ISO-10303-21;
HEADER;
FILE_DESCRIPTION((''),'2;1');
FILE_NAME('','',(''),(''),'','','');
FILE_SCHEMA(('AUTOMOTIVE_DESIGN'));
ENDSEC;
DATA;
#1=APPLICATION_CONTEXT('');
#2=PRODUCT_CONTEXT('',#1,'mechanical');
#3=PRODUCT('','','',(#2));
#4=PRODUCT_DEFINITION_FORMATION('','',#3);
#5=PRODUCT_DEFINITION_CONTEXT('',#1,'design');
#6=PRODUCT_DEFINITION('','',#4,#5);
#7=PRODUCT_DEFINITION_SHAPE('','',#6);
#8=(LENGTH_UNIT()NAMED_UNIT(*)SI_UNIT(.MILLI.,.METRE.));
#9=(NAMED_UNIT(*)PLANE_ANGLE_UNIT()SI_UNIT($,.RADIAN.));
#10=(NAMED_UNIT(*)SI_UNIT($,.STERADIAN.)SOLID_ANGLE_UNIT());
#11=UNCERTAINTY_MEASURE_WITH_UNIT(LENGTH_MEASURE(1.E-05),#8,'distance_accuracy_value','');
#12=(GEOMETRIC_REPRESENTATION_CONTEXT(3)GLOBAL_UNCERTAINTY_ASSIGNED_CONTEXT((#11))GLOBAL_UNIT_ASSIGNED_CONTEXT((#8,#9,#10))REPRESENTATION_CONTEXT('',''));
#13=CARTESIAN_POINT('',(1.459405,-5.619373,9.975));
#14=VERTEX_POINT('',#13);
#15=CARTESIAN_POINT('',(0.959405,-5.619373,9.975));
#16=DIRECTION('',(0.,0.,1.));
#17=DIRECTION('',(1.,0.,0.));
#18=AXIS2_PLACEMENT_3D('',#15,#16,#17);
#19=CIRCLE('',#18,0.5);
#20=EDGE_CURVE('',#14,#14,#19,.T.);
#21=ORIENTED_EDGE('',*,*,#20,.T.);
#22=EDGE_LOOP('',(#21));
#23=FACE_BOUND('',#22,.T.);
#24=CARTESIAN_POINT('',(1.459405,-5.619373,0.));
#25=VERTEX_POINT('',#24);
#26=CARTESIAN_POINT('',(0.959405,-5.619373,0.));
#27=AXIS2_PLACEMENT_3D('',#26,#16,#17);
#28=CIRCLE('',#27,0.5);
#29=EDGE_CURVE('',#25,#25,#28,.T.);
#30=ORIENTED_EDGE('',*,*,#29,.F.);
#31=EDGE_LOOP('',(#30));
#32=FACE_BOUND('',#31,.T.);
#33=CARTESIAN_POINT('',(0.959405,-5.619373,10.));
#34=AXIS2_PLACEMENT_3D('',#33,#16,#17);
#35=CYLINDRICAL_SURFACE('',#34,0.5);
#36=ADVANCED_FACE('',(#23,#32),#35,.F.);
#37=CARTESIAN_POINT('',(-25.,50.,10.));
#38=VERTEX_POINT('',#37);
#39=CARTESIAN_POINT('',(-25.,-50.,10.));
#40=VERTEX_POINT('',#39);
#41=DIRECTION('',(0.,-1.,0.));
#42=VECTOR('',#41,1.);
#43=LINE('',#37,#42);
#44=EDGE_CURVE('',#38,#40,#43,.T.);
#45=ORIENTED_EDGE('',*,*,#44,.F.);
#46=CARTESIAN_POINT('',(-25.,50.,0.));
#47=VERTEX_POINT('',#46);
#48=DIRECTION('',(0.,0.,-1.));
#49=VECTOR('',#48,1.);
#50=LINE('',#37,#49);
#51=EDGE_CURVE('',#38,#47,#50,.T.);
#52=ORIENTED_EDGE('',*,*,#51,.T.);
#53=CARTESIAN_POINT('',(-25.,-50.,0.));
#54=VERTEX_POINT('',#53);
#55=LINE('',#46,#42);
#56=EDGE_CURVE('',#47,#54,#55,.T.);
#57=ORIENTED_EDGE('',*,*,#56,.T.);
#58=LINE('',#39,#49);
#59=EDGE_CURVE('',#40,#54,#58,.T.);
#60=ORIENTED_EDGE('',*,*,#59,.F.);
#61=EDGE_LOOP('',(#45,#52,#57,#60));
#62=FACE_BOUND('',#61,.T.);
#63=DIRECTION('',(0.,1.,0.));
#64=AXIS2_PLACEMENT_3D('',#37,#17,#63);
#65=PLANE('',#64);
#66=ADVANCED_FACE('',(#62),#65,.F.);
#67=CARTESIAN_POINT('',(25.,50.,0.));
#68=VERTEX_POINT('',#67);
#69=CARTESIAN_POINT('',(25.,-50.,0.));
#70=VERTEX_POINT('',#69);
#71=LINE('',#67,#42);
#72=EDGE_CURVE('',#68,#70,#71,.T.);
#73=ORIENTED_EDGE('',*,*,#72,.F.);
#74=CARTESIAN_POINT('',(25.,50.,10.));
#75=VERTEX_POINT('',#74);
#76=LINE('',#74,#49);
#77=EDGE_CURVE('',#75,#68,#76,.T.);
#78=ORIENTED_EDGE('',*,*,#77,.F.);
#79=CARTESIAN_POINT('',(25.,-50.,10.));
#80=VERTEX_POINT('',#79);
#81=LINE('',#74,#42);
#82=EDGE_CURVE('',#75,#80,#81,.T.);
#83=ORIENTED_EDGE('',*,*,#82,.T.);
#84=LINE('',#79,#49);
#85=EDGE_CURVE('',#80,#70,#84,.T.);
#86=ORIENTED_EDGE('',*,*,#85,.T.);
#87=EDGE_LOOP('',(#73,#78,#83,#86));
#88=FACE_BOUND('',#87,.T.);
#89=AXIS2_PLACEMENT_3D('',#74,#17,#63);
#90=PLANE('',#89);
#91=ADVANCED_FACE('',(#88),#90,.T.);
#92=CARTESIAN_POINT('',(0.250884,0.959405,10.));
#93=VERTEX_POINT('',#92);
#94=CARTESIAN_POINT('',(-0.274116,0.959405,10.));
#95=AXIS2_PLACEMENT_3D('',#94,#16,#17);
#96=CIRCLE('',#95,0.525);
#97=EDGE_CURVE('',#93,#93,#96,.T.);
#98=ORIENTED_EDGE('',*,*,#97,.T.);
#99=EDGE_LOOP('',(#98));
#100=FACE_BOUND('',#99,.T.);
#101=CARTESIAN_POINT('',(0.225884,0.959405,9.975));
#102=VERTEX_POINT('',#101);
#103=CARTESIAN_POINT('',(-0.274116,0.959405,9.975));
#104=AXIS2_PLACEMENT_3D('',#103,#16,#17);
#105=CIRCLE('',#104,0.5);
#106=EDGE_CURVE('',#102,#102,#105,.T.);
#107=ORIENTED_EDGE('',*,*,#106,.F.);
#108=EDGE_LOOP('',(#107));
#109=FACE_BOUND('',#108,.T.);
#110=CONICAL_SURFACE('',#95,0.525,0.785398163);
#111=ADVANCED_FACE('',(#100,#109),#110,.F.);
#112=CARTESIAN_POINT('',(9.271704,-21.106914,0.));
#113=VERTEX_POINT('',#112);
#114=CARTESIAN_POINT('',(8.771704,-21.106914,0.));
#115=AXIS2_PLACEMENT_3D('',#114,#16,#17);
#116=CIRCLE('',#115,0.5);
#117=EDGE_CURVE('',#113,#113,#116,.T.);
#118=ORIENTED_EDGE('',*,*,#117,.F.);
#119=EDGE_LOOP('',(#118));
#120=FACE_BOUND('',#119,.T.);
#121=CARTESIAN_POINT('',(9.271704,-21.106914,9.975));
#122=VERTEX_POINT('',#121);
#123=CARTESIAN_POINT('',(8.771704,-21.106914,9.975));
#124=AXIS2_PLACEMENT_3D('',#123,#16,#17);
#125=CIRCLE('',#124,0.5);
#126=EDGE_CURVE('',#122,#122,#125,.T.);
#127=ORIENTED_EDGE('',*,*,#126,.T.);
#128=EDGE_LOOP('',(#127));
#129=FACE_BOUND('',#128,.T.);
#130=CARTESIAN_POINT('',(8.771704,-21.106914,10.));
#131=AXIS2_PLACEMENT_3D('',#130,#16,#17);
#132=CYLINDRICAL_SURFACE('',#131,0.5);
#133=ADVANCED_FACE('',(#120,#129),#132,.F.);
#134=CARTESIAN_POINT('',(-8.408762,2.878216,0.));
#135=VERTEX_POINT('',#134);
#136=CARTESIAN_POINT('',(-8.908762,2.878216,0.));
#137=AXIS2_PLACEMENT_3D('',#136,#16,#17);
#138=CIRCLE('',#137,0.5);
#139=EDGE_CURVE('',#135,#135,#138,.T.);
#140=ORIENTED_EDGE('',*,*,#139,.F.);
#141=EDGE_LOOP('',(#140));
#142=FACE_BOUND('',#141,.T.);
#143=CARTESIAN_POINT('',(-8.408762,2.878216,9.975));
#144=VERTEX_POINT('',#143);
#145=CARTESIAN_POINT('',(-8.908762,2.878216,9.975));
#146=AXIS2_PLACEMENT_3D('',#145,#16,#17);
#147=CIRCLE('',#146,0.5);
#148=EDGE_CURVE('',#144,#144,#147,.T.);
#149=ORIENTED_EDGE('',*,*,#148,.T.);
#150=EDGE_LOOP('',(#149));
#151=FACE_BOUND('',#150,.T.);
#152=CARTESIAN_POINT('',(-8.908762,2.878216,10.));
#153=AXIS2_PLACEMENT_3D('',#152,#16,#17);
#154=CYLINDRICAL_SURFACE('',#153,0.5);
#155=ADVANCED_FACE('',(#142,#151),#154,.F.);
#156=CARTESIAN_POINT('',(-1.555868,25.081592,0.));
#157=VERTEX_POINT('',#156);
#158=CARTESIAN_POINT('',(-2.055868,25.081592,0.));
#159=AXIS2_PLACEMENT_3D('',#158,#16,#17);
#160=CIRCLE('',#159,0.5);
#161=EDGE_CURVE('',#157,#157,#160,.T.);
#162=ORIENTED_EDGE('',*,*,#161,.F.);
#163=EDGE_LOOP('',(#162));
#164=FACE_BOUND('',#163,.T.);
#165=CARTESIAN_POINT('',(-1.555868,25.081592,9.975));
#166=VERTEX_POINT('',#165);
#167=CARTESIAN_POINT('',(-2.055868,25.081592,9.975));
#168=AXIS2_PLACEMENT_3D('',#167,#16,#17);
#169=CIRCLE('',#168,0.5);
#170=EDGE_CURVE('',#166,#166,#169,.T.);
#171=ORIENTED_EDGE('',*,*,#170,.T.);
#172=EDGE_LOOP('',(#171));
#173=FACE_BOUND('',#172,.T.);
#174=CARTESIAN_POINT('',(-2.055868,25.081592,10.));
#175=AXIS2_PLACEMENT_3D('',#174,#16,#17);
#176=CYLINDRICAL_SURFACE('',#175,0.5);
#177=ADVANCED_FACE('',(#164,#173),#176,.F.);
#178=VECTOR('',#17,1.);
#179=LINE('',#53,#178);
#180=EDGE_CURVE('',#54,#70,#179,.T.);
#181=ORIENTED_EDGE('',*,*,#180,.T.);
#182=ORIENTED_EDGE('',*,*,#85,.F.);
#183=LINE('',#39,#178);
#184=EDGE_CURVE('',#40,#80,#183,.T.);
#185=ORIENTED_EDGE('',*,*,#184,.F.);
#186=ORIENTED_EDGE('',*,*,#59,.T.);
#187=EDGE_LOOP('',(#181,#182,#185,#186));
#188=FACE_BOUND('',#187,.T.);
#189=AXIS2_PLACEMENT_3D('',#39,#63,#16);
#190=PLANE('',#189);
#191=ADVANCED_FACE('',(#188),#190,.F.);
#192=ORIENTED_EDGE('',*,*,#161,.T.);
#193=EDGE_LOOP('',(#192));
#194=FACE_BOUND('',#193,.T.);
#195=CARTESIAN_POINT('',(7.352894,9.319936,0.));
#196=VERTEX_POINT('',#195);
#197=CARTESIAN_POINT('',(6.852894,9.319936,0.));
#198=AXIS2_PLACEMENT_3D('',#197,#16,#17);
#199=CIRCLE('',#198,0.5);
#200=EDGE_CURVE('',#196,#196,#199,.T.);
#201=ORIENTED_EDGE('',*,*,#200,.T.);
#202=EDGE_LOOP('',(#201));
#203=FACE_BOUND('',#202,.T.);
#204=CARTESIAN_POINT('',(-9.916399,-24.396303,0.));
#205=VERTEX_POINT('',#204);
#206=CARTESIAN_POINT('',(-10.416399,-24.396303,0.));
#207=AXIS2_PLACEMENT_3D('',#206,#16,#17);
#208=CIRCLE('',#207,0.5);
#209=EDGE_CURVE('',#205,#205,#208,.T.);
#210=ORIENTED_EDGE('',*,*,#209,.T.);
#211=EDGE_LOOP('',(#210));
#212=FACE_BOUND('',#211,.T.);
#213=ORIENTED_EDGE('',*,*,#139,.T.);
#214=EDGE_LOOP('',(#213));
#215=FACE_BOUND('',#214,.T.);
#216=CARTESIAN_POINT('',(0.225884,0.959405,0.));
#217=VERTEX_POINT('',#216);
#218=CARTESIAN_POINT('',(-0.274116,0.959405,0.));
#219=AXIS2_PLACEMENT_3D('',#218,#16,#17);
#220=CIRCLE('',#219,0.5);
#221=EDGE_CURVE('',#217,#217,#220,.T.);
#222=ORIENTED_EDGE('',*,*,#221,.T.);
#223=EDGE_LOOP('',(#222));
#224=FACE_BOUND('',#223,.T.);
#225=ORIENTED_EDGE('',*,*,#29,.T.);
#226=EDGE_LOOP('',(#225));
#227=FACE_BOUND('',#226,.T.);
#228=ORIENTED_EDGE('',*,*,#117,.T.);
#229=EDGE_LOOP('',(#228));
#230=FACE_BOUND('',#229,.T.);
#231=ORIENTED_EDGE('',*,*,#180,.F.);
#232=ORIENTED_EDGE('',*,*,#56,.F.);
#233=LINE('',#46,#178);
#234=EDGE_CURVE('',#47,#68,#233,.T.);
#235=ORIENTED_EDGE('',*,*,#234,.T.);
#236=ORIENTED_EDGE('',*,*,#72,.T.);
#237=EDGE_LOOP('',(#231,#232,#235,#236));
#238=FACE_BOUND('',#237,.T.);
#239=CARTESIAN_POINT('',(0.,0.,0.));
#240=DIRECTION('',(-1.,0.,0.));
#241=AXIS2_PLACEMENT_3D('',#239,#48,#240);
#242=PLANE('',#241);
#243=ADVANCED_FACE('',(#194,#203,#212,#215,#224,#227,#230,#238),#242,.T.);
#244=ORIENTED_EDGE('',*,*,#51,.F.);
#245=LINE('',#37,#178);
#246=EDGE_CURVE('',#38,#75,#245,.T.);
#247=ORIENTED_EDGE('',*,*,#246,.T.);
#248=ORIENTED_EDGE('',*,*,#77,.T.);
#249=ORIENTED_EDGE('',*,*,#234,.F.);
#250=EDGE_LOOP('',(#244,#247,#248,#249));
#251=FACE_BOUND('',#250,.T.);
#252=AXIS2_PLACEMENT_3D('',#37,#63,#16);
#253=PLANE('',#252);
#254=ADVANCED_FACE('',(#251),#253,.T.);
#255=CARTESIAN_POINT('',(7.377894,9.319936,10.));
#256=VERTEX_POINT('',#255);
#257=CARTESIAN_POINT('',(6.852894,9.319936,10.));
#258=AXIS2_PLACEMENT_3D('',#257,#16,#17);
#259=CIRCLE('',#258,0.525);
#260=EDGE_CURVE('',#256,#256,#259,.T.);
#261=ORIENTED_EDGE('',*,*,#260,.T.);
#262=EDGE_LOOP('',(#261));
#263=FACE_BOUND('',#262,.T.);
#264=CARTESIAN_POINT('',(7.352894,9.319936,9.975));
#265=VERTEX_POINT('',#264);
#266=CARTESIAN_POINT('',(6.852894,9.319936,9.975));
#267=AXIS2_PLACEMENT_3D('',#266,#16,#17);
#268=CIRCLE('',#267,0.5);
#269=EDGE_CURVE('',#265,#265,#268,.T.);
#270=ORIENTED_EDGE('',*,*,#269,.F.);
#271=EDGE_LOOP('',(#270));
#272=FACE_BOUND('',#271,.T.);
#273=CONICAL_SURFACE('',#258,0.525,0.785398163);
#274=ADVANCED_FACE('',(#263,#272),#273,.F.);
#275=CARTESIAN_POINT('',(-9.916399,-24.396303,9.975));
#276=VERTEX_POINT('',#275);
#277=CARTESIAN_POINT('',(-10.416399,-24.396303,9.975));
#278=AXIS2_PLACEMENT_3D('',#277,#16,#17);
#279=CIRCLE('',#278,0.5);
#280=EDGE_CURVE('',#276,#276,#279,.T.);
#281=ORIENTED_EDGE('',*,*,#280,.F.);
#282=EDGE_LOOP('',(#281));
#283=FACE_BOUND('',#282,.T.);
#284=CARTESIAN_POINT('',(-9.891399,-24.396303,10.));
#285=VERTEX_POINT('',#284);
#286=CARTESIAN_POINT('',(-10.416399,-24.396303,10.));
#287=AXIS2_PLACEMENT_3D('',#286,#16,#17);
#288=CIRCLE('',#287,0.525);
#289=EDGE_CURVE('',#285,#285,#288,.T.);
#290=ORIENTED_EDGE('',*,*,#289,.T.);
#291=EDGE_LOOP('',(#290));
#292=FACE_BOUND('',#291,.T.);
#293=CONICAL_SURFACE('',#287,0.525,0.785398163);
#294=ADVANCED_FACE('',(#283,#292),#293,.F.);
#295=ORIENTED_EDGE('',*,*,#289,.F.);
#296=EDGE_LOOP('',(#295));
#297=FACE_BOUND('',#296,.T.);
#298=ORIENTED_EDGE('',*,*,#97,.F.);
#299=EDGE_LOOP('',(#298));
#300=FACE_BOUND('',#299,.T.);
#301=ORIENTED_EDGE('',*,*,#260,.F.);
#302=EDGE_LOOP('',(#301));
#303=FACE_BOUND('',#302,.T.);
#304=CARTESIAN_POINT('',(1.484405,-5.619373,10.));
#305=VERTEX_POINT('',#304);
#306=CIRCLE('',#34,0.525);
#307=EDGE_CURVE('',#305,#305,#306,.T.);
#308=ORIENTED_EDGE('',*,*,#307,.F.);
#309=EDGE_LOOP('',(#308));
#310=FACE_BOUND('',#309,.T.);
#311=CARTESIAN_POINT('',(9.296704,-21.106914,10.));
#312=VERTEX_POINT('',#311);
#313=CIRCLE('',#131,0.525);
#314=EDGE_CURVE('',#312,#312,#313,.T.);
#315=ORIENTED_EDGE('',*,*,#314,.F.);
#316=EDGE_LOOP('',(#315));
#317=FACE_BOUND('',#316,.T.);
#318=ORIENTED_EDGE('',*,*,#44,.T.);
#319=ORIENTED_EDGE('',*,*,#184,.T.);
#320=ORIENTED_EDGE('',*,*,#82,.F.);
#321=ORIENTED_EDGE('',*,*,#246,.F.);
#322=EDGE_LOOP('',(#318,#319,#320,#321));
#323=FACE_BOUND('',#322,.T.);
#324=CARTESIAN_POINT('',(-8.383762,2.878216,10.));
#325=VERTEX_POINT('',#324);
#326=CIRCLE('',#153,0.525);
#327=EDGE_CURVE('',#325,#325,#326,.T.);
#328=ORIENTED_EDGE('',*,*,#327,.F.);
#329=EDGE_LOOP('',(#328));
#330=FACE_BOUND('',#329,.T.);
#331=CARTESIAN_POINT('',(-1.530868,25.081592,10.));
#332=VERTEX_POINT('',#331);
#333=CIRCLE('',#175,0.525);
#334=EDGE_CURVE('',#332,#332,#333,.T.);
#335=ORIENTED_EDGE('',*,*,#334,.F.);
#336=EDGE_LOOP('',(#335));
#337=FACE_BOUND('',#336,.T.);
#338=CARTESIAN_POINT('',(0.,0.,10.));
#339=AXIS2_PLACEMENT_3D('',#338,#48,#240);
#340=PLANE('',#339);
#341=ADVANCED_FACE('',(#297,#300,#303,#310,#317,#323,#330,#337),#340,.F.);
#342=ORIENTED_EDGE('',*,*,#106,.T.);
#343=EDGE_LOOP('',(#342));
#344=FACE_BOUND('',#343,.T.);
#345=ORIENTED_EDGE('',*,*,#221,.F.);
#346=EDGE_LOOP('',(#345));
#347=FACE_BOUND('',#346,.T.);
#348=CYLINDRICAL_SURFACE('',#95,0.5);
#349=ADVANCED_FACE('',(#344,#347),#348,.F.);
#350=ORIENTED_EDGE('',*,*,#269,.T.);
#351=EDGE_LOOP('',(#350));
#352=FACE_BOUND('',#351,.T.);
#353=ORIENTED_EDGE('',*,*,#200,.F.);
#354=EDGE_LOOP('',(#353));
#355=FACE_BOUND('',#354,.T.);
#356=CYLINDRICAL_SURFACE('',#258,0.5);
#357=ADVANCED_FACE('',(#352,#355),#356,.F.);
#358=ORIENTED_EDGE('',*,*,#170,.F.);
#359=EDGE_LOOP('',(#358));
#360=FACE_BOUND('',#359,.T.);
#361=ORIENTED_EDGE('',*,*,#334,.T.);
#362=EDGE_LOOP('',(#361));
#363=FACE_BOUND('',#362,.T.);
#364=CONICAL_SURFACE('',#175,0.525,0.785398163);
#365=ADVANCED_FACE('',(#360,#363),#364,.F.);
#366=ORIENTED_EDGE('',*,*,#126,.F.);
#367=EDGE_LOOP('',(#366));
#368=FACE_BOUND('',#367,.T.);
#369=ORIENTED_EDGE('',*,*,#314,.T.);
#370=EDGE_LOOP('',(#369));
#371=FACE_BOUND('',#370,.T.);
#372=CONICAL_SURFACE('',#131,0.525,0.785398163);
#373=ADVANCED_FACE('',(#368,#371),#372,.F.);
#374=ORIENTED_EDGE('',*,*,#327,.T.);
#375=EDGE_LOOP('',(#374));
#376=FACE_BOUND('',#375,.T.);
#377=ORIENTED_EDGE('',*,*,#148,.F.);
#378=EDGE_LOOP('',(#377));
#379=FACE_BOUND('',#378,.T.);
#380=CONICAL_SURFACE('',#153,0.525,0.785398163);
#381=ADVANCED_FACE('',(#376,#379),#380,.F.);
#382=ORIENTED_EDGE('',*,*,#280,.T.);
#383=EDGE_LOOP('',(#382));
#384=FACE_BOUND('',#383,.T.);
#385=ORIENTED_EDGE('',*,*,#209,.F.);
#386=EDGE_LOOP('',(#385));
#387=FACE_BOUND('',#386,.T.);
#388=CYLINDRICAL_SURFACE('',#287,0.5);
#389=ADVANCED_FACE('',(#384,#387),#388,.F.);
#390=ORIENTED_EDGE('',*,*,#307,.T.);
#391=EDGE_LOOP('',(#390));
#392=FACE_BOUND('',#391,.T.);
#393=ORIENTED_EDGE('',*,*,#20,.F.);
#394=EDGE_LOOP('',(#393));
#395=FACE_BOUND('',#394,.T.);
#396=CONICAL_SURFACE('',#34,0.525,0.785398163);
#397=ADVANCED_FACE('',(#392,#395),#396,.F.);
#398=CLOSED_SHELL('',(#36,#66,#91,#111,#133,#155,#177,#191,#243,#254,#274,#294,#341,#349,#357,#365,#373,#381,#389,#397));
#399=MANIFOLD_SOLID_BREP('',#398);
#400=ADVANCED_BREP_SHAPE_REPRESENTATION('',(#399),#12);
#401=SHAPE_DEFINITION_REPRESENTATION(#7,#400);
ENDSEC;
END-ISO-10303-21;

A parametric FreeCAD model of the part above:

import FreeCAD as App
import Part
import Sketcher
from FreeCAD import Vector


def add_polygon(sketch, points):
    """Adds a closed chain of lines whose ends are joined by coincident constraints."""
    first, n = sketch.GeometryCount, len(points)
    for a, b in zip(points, points[1:] + points[:1]):
        sketch.addGeometry(Part.LineSegment(App.Vector(*a, 0), App.Vector(*b, 0)), False)
    for i in range(n):
        sketch.addConstraint(Sketcher.Constraint("Coincident", first + i, 2, first + (i + 1) % n, 1))

doc = App.newDocument("Part")
params = doc.addObject("Spreadsheet::Sheet", "Params")
for row, (alias, value) in enumerate([
    ("sketch1_width", "50 mm"),
    ("sketch1_height", "100 mm"),
    ("pad1_length", "10 mm"),
    ("sketch2_diameter", "1 mm"),
    ("hole_diameter", "1 mm"),
    ("hole_csink_diameter", "1.05 mm"),
], start=1):
    params.set(f"A{row}", alias)
    params.set(f"B{row}", "=" + value)
    params.setAlias(f"B{row}", alias)

body = doc.addObject("PartDesign::Body", "Body")

sketch1 = body.newObject("Sketcher::SketchObject", "Sketch")
sketch1.AttachmentSupport = (doc.getObject("XY_Plane"), [""])
sketch1.MapMode = "FlatFace"
add_polygon(sketch1, [(-25, 50), (-25, -50), (25, -50), (25, 50)])
sketch1.addConstraint(Sketcher.Constraint("Vertical", 0))
sketch1.addConstraint(Sketcher.Constraint("Horizontal", 1))
sketch1.addConstraint(Sketcher.Constraint("Vertical", 2))
sketch1.addConstraint(Sketcher.Constraint("Horizontal", 3))
sketch1.addConstraint(Sketcher.Constraint("Symmetric", 0, 2, 2, 2, -1, 1))
sketch1.addConstraint(Sketcher.Constraint("DistanceX", 1, 1, 1, 2, 50.0))
sketch1.addConstraint(Sketcher.Constraint("DistanceY", 0, 2, 0, 1, 100.0))
sketch1.setExpression("Constraints[9]", "Params.sketch1_width")
sketch1.setExpression("Constraints[10]", "Params.sketch1_height")
pad1 = body.newObject("PartDesign::Pad", "Pad")
pad1.Profile = sketch1
pad1.setExpression("Length", "Params.pad1_length")

sketch2 = body.newObject("Sketcher::SketchObject", "Sketch001")
sketch2.AttachmentSupport = (doc.getObject("XY_Plane"), [""])
sketch2.MapMode = "FlatFace"
sketch2.AttachmentOffset = App.Placement(Vector(0, 0, 10), App.Rotation())
sketch2.addGeometry(Part.Circle(Vector(-10.4, -24.4, 0), Vector(0, 0, 1), 0.5), False)
sketch2.addGeometry(Part.Circle(Vector(-0.3, 1, 0), Vector(0, 0, 1), 0.5), False)
sketch2.addGeometry(Part.Circle(Vector(1, -5.6, 0), Vector(0, 0, 1), 0.5), False)
sketch2.addGeometry(Part.Circle(Vector(-8.9, 2.9, 0), Vector(0, 0, 1), 0.5), False)
sketch2.addGeometry(Part.Circle(Vector(6.9, 9.3, 0), Vector(0, 0, 1), 0.5), False)
sketch2.addGeometry(Part.Circle(Vector(-2.1, 25.1, 0), Vector(0, 0, 1), 0.5), False)
sketch2.addGeometry(Part.Circle(Vector(8.8, -21.1, 0), Vector(0, 0, 1), 0.5), False)
sketch2.addConstraint(Sketcher.Constraint("Equal", 0, 1))
sketch2.addConstraint(Sketcher.Constraint("Equal", 1, 2))
sketch2.addConstraint(Sketcher.Constraint("Equal", 2, 3))
sketch2.addConstraint(Sketcher.Constraint("Equal", 3, 4))
sketch2.addConstraint(Sketcher.Constraint("Equal", 4, 5))
sketch2.addConstraint(Sketcher.Constraint("Equal", 5, 6))
sketch2.addConstraint(Sketcher.Constraint("Diameter", 0, 1.0))
sketch2.addConstraint(Sketcher.Constraint("DistanceX", 0, 3, -1, 1, 10.416399))
sketch2.addConstraint(Sketcher.Constraint("DistanceX", 2, 3, 6, 3, 7.812299))
sketch2.addConstraint(Sketcher.Constraint("DistanceX", 5, 3, -1, 1, 2.055868))
sketch2.addConstraint(Sketcher.Constraint("DistanceY", 0, 3, 1, 3, 25.355708))
sketch2.addConstraint(Sketcher.Constraint("DistanceX", 1, 3, 2, 3, 1.233521))
sketch2.addConstraint(Sketcher.Constraint("DistanceY", 2, 3, 1, 3, 6.578778))
sketch2.addConstraint(Sketcher.Constraint("DistanceY", 1, 3, 3, 3, 1.91881))
sketch2.addConstraint(Sketcher.Constraint("DistanceX", 1, 3, 4, 3, 7.12701))
sketch2.addConstraint(Sketcher.Constraint("DistanceY", 1, 3, 4, 3, 8.360531))
sketch2.addConstraint(Sketcher.Constraint("DistanceY", 6, 3, 2, 3, 15.487541))
sketch2.addConstraint(Sketcher.Constraint("DistanceY", 0, 3, -1, 1, 24.396303))
sketch2.addConstraint(Sketcher.Constraint("DistanceX", 1, 3, -1, 1, 0.274116))
sketch2.addConstraint(Sketcher.Constraint("DistanceX", 3, 3, -1, 1, 8.908762))
sketch2.addConstraint(Sketcher.Constraint("DistanceY", -1, 1, 5, 3, 25.081592))
sketch2.setExpression("Constraints[6]", "Params.sketch2_diameter")
doc.recompute()
hole = body.newObject("PartDesign::Hole", "Hole")
hole.Profile = sketch2
hole.ThreadType = "None"
hole.setExpression("Diameter", "Params.hole_diameter")
hole.DepthType = "ThroughAll"
hole.HoleCutType = "Countersink"
hole.setExpression("HoleCutDiameter", "Params.hole_csink_diameter")
hole.HoleCutCountersinkAngle = 90

doc.recompute()
